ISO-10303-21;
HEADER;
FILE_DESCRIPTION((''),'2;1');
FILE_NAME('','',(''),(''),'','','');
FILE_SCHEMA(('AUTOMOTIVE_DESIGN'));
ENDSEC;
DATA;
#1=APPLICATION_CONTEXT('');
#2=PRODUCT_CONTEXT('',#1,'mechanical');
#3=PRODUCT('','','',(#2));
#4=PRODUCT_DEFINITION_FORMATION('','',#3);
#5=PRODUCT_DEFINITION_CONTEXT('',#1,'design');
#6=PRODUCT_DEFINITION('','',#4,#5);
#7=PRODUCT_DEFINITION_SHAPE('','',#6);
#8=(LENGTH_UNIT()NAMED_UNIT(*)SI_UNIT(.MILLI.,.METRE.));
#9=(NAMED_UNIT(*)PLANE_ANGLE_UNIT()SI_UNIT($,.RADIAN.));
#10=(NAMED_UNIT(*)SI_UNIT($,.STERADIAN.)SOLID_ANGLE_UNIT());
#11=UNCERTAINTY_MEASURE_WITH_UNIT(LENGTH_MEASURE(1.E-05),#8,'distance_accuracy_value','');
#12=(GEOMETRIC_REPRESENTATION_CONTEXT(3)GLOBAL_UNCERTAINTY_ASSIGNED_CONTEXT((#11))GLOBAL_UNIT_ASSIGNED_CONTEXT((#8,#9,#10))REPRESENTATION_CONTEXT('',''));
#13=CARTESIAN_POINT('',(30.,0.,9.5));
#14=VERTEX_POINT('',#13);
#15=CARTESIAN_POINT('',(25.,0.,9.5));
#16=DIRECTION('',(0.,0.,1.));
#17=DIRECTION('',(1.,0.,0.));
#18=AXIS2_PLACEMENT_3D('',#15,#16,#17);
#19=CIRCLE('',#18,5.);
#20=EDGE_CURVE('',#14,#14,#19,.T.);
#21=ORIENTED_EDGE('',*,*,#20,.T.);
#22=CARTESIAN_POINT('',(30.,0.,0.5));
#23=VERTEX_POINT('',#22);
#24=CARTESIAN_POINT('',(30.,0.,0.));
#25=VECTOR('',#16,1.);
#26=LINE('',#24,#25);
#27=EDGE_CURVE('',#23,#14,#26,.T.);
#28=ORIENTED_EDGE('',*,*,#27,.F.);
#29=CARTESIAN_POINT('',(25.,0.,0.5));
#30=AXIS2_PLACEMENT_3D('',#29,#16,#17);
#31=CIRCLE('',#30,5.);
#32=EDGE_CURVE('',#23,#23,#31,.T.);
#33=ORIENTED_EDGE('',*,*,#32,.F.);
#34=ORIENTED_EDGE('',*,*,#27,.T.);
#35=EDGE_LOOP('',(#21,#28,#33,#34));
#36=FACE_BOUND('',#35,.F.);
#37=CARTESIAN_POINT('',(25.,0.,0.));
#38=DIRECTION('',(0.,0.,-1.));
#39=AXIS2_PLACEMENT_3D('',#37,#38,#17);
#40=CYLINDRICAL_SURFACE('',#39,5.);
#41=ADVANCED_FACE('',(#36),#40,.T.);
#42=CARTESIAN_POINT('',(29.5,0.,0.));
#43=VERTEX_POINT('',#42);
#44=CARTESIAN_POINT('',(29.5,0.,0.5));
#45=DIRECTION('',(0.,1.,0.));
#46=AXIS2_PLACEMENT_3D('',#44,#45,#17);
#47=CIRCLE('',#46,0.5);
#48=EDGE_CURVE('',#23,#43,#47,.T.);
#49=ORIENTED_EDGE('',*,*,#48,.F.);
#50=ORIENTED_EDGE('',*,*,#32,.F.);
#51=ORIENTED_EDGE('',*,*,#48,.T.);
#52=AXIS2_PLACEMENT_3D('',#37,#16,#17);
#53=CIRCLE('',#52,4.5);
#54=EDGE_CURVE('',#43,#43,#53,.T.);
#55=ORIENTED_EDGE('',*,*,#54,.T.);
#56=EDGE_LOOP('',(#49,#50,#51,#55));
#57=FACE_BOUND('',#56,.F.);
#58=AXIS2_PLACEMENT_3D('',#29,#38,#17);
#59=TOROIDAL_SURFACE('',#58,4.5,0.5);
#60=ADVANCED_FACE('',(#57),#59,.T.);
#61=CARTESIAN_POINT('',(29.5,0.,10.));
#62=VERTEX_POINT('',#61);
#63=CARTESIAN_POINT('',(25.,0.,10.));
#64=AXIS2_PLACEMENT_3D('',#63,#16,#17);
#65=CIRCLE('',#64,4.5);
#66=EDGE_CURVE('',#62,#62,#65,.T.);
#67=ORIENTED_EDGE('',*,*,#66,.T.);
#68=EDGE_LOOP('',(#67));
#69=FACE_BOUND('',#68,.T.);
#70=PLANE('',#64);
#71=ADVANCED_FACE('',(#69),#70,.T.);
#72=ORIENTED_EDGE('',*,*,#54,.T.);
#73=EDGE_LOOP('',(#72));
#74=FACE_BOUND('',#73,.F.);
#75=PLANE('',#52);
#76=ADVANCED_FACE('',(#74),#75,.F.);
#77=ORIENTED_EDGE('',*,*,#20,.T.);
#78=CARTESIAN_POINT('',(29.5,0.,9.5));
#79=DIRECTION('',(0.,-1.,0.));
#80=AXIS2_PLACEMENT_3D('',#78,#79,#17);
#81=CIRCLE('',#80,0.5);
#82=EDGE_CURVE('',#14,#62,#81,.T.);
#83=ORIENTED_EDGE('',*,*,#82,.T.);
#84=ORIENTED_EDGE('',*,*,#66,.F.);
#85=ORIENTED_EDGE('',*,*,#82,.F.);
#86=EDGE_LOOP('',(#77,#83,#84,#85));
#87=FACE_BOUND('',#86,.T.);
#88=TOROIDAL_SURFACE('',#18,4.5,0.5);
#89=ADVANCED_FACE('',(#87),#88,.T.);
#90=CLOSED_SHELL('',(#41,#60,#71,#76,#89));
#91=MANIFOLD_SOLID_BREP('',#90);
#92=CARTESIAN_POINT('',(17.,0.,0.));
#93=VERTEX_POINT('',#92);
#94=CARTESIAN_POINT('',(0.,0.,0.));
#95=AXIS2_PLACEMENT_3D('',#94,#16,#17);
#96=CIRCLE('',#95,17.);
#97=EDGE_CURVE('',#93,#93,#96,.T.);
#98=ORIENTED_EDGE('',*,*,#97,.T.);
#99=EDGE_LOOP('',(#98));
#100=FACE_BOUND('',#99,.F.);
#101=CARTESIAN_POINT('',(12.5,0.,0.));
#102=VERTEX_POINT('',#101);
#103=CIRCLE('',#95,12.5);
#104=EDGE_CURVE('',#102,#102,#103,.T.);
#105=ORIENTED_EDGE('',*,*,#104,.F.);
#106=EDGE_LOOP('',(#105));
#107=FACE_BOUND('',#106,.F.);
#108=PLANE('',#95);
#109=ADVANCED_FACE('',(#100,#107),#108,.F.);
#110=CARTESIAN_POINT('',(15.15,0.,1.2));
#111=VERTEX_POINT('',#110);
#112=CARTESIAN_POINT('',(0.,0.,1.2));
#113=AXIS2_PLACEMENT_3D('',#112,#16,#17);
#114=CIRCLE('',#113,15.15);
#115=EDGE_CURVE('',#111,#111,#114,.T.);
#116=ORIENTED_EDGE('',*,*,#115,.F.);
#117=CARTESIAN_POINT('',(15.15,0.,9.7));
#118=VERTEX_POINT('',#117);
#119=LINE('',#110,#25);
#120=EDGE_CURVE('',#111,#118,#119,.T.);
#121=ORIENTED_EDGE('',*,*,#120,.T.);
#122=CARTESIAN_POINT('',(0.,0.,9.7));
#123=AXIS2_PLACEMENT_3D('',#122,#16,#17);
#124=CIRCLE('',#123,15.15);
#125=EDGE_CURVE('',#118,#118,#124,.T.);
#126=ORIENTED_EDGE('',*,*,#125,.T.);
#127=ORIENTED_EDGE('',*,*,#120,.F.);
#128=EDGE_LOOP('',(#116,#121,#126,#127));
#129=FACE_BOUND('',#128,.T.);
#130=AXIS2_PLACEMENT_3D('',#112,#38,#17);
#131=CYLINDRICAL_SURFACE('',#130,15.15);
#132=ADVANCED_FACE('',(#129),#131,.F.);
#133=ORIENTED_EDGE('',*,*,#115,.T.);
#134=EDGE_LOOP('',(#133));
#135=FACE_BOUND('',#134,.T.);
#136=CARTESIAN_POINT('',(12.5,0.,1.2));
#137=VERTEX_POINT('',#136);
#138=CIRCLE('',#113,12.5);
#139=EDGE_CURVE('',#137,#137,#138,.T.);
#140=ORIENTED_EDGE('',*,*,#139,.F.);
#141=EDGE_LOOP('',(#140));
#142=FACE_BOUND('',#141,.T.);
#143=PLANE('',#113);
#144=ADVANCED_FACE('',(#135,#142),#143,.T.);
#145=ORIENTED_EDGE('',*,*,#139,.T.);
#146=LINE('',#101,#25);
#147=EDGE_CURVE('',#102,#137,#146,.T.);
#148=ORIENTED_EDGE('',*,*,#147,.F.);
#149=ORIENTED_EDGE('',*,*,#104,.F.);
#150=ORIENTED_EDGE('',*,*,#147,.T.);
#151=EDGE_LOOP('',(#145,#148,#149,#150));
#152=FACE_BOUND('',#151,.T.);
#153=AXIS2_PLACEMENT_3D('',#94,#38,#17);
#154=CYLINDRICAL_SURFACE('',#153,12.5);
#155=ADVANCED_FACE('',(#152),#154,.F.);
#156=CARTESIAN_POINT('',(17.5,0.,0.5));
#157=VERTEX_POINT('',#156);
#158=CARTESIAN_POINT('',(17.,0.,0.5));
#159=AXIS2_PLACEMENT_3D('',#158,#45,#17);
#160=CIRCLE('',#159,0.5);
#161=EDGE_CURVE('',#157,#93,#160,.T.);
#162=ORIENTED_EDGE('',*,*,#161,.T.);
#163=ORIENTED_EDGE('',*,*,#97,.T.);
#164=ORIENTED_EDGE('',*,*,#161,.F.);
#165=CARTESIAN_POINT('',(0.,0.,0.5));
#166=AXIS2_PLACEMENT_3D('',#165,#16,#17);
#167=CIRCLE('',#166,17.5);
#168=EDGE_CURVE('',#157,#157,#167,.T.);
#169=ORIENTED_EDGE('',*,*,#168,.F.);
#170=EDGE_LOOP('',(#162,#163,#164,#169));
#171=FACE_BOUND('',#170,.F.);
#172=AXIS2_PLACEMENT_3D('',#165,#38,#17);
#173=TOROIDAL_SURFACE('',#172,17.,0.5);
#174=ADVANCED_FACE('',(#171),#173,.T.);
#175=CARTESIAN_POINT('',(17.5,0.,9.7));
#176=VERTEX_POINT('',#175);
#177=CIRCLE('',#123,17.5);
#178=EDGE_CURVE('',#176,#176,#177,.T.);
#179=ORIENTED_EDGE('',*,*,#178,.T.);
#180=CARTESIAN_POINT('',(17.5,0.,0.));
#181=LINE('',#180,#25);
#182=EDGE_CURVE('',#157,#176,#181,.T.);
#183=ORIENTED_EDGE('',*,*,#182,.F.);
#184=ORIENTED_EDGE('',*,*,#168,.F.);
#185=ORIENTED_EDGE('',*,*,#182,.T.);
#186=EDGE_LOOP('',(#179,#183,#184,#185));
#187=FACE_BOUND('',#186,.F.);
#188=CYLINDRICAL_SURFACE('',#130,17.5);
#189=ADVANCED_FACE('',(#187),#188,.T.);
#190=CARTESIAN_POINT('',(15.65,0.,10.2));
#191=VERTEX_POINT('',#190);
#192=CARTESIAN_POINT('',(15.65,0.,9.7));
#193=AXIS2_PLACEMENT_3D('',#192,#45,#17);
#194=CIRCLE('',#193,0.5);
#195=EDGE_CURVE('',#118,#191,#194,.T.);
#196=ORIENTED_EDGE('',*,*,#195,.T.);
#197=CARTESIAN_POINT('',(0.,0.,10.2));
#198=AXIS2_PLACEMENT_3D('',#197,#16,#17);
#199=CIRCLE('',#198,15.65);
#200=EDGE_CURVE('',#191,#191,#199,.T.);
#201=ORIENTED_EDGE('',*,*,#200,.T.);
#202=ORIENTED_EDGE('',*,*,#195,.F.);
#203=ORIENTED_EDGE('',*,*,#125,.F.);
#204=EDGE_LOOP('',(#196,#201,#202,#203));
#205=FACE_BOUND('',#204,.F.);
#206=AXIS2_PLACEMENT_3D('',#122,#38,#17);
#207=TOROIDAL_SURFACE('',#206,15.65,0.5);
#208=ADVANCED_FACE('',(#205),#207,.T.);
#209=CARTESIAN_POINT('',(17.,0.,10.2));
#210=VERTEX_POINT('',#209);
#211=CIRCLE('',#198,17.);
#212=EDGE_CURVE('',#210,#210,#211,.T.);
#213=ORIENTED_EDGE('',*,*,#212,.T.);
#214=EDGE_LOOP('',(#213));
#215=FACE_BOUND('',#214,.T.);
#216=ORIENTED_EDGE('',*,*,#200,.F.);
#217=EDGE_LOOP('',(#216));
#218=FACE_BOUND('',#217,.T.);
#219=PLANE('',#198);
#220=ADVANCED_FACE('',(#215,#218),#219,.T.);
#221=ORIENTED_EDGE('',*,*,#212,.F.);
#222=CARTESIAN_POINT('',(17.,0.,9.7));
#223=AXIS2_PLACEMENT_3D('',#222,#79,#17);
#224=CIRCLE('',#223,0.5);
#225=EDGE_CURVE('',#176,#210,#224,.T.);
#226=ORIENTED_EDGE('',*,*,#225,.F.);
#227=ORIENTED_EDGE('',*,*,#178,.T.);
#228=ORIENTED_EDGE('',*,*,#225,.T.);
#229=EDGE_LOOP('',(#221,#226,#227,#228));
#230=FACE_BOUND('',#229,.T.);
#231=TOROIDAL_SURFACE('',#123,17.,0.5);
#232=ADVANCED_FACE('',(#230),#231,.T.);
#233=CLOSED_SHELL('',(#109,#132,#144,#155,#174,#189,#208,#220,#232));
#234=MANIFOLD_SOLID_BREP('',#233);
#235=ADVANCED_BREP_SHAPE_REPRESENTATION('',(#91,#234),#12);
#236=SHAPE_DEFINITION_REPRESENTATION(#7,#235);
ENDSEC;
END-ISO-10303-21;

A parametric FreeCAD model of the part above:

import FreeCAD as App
import Part
import Sketcher
Q = App.Units.Quantity


def edges_at(feature, points):
    """Names of the edges that pass closest to the given points."""
    edges = feature.Shape.Edges
    near = lambda p: min(range(len(edges)), key=lambda i: edges[i].distToShape(Part.Vertex(*p))[0])
    return sorted({f"Edge{near(p) + 1}" for p in points})

doc = App.newDocument("Part")
body = doc.addObject("PartDesign::Body", "Body")

sketch1 = body.newObject("Sketcher::SketchObject", "Sketch")
sketch1.AttachmentSupport = (doc.getObject("XY_Plane"), [""])
sketch1.MapMode = "FlatFace"
sketch1.addGeometry([
    Part.Circle(App.Vector(0, 0, 0), App.Vector(0, 0, 1), 17.5),
    Part.Circle(App.Vector(0, 0, 0), App.Vector(0, 0, 1), 12.5),
], False)
sketch1.addConstraint([
    Sketcher.Constraint("Coincident", 0, 3, -1, 1),
    Sketcher.Constraint("Coincident", 1, 3, -1, 1),
    Sketcher.Constraint("Diameter", 0, Q("35 mm")),
    Sketcher.Constraint("Diameter", 1, Q("25 mm")),
])
pad1 = body.newObject("PartDesign::Pad", "Pad")
pad1.Profile = sketch1
pad1.Length = 1.2

sketch2 = body.newObject("Sketcher::SketchObject", "Sketch001")
sketch2.AttachmentSupport = (doc.getObject("XY_Plane"), [""])
sketch2.MapMode = "FlatFace"
sketch2.AttachmentOffset = App.Placement(App.Vector(0, 0, 1.2), App.Rotation())
sketch2.addGeometry([
    Part.Circle(App.Vector(0, 0, 0), App.Vector(0, 0, 1), 17.5),
    Part.Circle(App.Vector(0, 0, 0), App.Vector(0, 0, 1), 15.15),
], False)
sketch2.addConstraint([
    Sketcher.Constraint("Coincident", 0, 3, -1, 1),
    Sketcher.Constraint("Coincident", 1, 3, -1, 1),
    Sketcher.Constraint("Diameter", 0, Q("35 mm")),
    Sketcher.Constraint("Diameter", 1, Q("30.3 mm")),
])
pad2 = body.newObject("PartDesign::Pad", "Pad001")
pad2.Profile = sketch2
pad2.Length = 9
doc.recompute()

fillet = body.newObject("PartDesign::Fillet", "Fillet")
fillet.Base = (pad2, edges_at(pad2, [(-15.15, 0, 10.2), (-17.5, 0, 10.2), (-17.5, 0, 0)]))
fillet.Radius = 0.5
body2 = doc.addObject("PartDesign::Body", "Body001")

sketch3 = body2.newObject("Sketcher::SketchObject", "Sketch002")
sketch3.AttachmentSupport = (doc.getObject("XY_Plane001"), [""])
sketch3.MapMode = "FlatFace"
sketch3.addGeometry(Part.Circle(App.Vector(25, 0, 0), App.Vector(0, 0, 1), 5), False)
sketch3.addConstraint([
    Sketcher.Constraint("PointOnObject", 0, 3, -1),
    Sketcher.Constraint("Diameter", 0, Q("10 mm")),
    Sketcher.Constraint("DistanceX", -1, 1, 0, 3, Q("25 mm")),
])
pad3 = body2.newObject("PartDesign::Pad", "Pad002")
pad3.Profile = sketch3
pad3.Length = 10
doc.recompute()

fillet2 = body2.newObject("PartDesign::Fillet", "Fillet001")
fillet2.Base = (pad3, ["Edge1"])
fillet2.UseAllEdges = True
fillet2.Radius = 0.5

doc.recompute()
